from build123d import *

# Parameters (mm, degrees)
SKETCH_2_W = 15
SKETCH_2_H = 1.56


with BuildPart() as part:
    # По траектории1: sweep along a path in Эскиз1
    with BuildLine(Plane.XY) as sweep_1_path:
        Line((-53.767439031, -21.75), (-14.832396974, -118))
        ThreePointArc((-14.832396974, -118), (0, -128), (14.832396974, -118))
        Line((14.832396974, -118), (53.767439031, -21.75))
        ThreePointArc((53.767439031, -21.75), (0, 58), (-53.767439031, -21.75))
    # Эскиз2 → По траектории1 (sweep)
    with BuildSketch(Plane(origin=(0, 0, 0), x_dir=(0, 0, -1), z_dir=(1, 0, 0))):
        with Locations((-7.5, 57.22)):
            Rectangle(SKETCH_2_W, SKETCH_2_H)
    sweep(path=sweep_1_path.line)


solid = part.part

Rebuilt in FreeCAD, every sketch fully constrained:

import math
import FreeCAD as App
import Part
import Sketcher


def add_polygon(sketch, points):
    """Adds a closed chain of lines whose ends are joined by coincident constraints."""
    first, n = sketch.GeometryCount, len(points)
    for a, b in zip(points, points[1:] + points[:1]):
        sketch.addGeometry(Part.LineSegment(App.Vector(*a, 0), App.Vector(*b, 0)), False)
    for i in range(n):
        sketch.addConstraint(Sketcher.Constraint("Coincident", first + i, 2, first + (i + 1) % n, 1))

doc = App.newDocument("Part")
body = doc.addObject("PartDesign::Body", "Body")

# Sketch on YZ plane
sketch1 = doc.addObject("Sketcher::SketchObject", "Sketch")
body.addObject(sketch1)
sketch1.AttachmentSupport = (doc.YZ_Plane, [""])
sketch1.MapMode = "FlatFace"
add_polygon(sketch1, [(58, 15), (56.4, 15), (56.4, 0), (58, 0)])  # lines 0-3
sketch1.addConstraint(Sketcher.Constraint("Horizontal", 0))
sketch1.addConstraint(Sketcher.Constraint("Vertical", 1))
sketch1.addConstraint(Sketcher.Constraint("Horizontal", 2))
sketch1.addConstraint(Sketcher.Constraint("Vertical", 3))
sketch1.addConstraint(Sketcher.Constraint("PointOnObject", 1, 2, -1))
sketch1.addConstraint(Sketcher.Constraint("DistanceY", 1, 2, 1, 1, 15.0))
sketch1.addConstraint(Sketcher.Constraint("DistanceX", -1, 1, 2, 2, 58.0))
sketch1.addConstraint(Sketcher.Constraint("DistanceX", 0, 2, 0, 1, 1.56))

# Sketch on XY plane
sketch2 = doc.addObject("Sketcher::SketchObject", "Sketch001")
body.addObject(sketch2)
sketch2.AttachmentSupport = (doc.XY_Plane, [""])
sketch2.MapMode = "FlatFace"
sketch2.addGeometry(Part.LineSegment(App.Vector(-54, -22, 0), App.Vector(-15, -118, 0)), False)
sketch2.addGeometry(Part.ArcOfCircle(Part.Circle(App.Vector(0, -112, 0), App.Vector(0, 0, 1), 16), math.radians(-158), math.radians(-22)), False)
sketch2.addGeometry(Part.LineSegment(App.Vector(15, -118, 0), App.Vector(54, -22, 0)), False)
sketch2.addGeometry(Part.ArcOfCircle(Part.Circle(App.Vector(0, 0, 0), App.Vector(0, 0, 1), 58), math.radians(-22), math.radians(202)), False)
sketch2.addConstraint(Sketcher.Constraint("Tangent", 0, 2, 1, 1))
sketch2.addConstraint(Sketcher.Constraint("Tangent", 1, 2, 2, 1))
sketch2.addConstraint(Sketcher.Constraint("Tangent", 2, 2, 3, 1))
sketch2.addConstraint(Sketcher.Constraint("Tangent", 3, 2, 0, 1))
sketch2.addConstraint(Sketcher.Constraint("Coincident", 3, 3, -1, 1))
sketch2.addConstraint(Sketcher.Constraint("PointOnObject", 1, 3, -2))
sketch2.addConstraint(Sketcher.Constraint("Radius", 1, 16.0))
sketch2.addConstraint(Sketcher.Constraint("Radius", 3, 58.0))
sketch2.addConstraint(Sketcher.Constraint("DistanceY", 1, 3, -1, 1, 112.0))
doc.recompute()

additivepipe = doc.addObject("PartDesign::AdditivePipe", "AdditivePipe")
body.addObject(additivepipe)
additivepipe.Profile = sketch1
additivepipe.Spine = (sketch2, ["Edge1", "Edge2", "Edge3", "Edge4"])

doc.recompute()
